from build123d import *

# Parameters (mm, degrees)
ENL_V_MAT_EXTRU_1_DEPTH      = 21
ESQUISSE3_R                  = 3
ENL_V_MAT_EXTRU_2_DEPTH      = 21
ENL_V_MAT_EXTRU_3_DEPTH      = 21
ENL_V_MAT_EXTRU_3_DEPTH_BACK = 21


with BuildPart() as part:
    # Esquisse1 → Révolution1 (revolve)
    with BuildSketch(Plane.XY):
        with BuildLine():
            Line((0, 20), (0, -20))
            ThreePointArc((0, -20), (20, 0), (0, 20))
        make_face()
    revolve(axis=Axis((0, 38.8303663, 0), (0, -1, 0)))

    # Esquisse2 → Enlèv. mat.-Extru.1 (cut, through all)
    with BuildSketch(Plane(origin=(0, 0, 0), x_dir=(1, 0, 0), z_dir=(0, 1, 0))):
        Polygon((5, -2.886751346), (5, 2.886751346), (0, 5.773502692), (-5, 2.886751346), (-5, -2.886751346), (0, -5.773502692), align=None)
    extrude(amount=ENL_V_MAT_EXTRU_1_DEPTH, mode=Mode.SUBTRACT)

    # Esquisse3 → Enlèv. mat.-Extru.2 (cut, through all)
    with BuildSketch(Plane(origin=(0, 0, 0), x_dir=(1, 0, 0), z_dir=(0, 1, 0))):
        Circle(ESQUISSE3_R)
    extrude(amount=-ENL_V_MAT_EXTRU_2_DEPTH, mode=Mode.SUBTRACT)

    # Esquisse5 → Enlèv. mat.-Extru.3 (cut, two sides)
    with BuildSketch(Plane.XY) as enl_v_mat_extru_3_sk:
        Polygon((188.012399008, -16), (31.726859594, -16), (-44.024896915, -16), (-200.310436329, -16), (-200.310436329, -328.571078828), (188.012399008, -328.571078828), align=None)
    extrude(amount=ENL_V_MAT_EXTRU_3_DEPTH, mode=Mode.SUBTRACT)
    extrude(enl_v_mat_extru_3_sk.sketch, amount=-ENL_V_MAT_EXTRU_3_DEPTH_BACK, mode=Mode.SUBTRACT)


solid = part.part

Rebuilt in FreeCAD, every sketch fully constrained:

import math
import FreeCAD as App
import Part
import Sketcher

V = App.Vector
Q = App.Units.Quantity

doc = App.newDocument("Part")
body = doc.addObject("PartDesign::Body", "Body")

sketch1 = body.newObject("Sketcher::SketchObject", "Sketch")
sketch1.AttachmentSupport = (doc.getObject("XY_Plane"), [""])
sketch1.MapMode = "FlatFace"
sketch1.addGeometry(Part.LineSegment(V(0, 20, 0), V(0, -20, 0)), False)
sketch1.addGeometry(Part.ArcOfCircle(Part.Circle(V(0, 0, 0), V(0, 0, 1), 20), math.radians(-90), math.radians(90)), False)
sketch1.addConstraint(Sketcher.Constraint("Coincident", 0, 1, 1, 2))
sketch1.addConstraint(Sketcher.Constraint("Coincident", 1, 1, 0, 2))
sketch1.addConstraint(Sketcher.Constraint("Vertical", 0))
sketch1.addConstraint(Sketcher.Constraint("Coincident", 1, 3, -1, 1))
sketch1.addConstraint(Sketcher.Constraint("PointOnObject", 0, 1, -2))
sketch1.addConstraint(Sketcher.Constraint("Radius", 1, Q("20 mm")))
revolution = body.newObject("PartDesign::Revolution", "Revolution")
revolution.Profile = sketch1
revolution.ReferenceAxis = (sketch1, ["V_Axis"])
revolution.Angle = 360

sketch2 = body.newObject("Sketcher::SketchObject", "Sketch001")
sketch2.AttachmentSupport = (doc.getObject("XZ_Plane"), [""])
sketch2.MapMode = "FlatFace"
sketch2.addGeometry(Part.LineSegment(V(5, 3, 0), V(5, -3, 0)), False)
sketch2.addGeometry(Part.LineSegment(V(5, -3, 0), V(0, -6, 0)), False)
sketch2.addGeometry(Part.LineSegment(V(0, -6, 0), V(-5, -3, 0)), False)
sketch2.addGeometry(Part.LineSegment(V(-5, -3, 0), V(-5, 3, 0)), False)
sketch2.addGeometry(Part.LineSegment(V(-5, 3, 0), V(0, 6, 0)), False)
sketch2.addGeometry(Part.LineSegment(V(0, 6, 0), V(5, 3, 0)), False)
sketch2.addConstraint(Sketcher.Constraint("Coincident", 0, 2, 1, 1))
sketch2.addConstraint(Sketcher.Constraint("Coincident", 1, 2, 2, 1))
sketch2.addConstraint(Sketcher.Constraint("Coincident", 2, 2, 3, 1))
sketch2.addConstraint(Sketcher.Constraint("Coincident", 3, 2, 4, 1))
sketch2.addConstraint(Sketcher.Constraint("Coincident", 4, 2, 5, 1))
sketch2.addConstraint(Sketcher.Constraint("Coincident", 5, 2, 0, 1))
sketch2.addConstraint(Sketcher.Constraint("Vertical", 0))
sketch2.addConstraint(Sketcher.Constraint("Vertical", 3))
sketch2.addConstraint(Sketcher.Constraint("Symmetric", 0, 2, 3, 2, -1, 1))
sketch2.addConstraint(Sketcher.Constraint("Symmetric", 1, 2, 4, 2, -1, 1))
sketch2.addConstraint(Sketcher.Constraint("PointOnObject", 1, 2, -2))
sketch2.addConstraint(Sketcher.Constraint("Parallel", 2, 5))
sketch2.addConstraint(Sketcher.Constraint("Horizontal", 0, 2, 2, 2))
sketch2.addConstraint(Sketcher.Constraint("Angle", 1, Q("-150 deg")))
sketch2.addConstraint(Sketcher.Constraint("DistanceX", -1, 1, 0, 2, Q("5 mm")))
sketch2.addConstraint(Sketcher.Constraint("DistanceY", 0, 2, 0, 1, Q("5.773503 mm")))
pocket1 = body.newObject("PartDesign::Pocket", "Pocket")
pocket1.Profile = sketch2
pocket1.Type = "ThroughAll"

sketch3 = body.newObject("Sketcher::SketchObject", "Sketch002")
sketch3.AttachmentSupport = (doc.getObject("XZ_Plane"), [""])
sketch3.MapMode = "FlatFace"
sketch3.addGeometry(Part.Circle(V(0, 0, 0), V(0, 0, 1), 3), False)
sketch3.addConstraint(Sketcher.Constraint("Coincident", 0, 3, -1, 1))
sketch3.addConstraint(Sketcher.Constraint("Diameter", 0, Q("6 mm")))
pocket2 = body.newObject("PartDesign::Pocket", "Pocket001")
pocket2.Profile = sketch3
pocket2.Type = "ThroughAll"
pocket2.Reversed = True

sketch4 = body.newObject("Sketcher::SketchObject", "Sketch003")
sketch4.AttachmentSupport = (doc.getObject("XY_Plane"), [""])
sketch4.MapMode = "FlatFace"
sketch4.addGeometry(Part.LineSegment(V(188, -16, 0), V(-200, -16, 0)), False)
sketch4.addGeometry(Part.LineSegment(V(-200, -16, 0), V(-200, -329, 0)), False)
sketch4.addGeometry(Part.LineSegment(V(-200, -329, 0), V(188, -329, 0)), False)
sketch4.addGeometry(Part.LineSegment(V(188, -329, 0), V(188, -16, 0)), False)
sketch4.addConstraint(Sketcher.Constraint("Coincident", 0, 2, 1, 1))
sketch4.addConstraint(Sketcher.Constraint("Coincident", 1, 2, 2, 1))
sketch4.addConstraint(Sketcher.Constraint("Coincident", 2, 2, 3, 1))
sketch4.addConstraint(Sketcher.Constraint("Coincident", 3, 2, 0, 1))
sketch4.addConstraint(Sketcher.Constraint("Horizontal", 0))
sketch4.addConstraint(Sketcher.Constraint("Vertical", 1))
sketch4.addConstraint(Sketcher.Constraint("Horizontal", 2))
sketch4.addConstraint(Sketcher.Constraint("Vertical", 3))
sketch4.addConstraint(Sketcher.Constraint("DistanceY", 0, 2, -1, 1, Q("16 mm")))
sketch4.addConstraint(Sketcher.Constraint("DistanceY", 1, 2, 1, 1, Q("312.571079 mm")))
sketch4.addConstraint(Sketcher.Constraint("DistanceX", -1, 1, 2, 2, Q("188.012399 mm")))
sketch4.addConstraint(Sketcher.Constraint("DistanceX", 0, 2, 0, 1, Q("388.322835 mm")))
pocket3 = body.newObject("PartDesign::Pocket", "Pocket002")
pocket3.Profile = sketch4
pocket3.Type = "ThroughAll"
pocket3.Midplane = True

doc.recompute()
